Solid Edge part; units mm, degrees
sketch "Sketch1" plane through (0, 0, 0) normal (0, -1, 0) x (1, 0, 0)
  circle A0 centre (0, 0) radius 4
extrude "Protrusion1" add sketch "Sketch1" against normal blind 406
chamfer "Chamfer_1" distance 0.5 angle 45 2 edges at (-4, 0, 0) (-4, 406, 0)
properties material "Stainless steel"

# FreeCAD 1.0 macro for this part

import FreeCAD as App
import Part
import Sketcher

V = App.Vector
Q = App.Units.Quantity


def edges_at(feature, points):
    """Names of the edges that pass closest to the given points."""
    edges = feature.Shape.Edges
    near = lambda p: min(range(len(edges)), key=lambda i: edges[i].distToShape(Part.Vertex(*p))[0])
    return sorted({f"Edge{near(p) + 1}" for p in points})

doc = App.newDocument("Part")
body = doc.addObject("PartDesign::Body", "Body")

# Sketch on XZ plane
sketch1 = body.newObject("Sketcher::SketchObject", "Sketch")
sketch1.AttachmentSupport = (doc.getObject("XZ_Plane"), [""])
sketch1.MapMode = "FlatFace"
sketch1.addGeometry(Part.Circle(V(0, 0, 0), V(0, 0, 1), 4), False)
sketch1.addConstraint(Sketcher.Constraint("Coincident", 0, 3, -1, 1))
sketch1.addConstraint(Sketcher.Constraint("Diameter", 0, Q("8 mm")))
pad1 = body.newObject("PartDesign::Pad", "Pad")
pad1.Profile = sketch1
pad1.Length = 406
pad1.Reversed = True
doc.recompute()

chamfer = body.newObject("PartDesign::Chamfer", "Chamfer")
chamfer.Base = (pad1, edges_at(pad1, [(-4, 0, 0), (-4, 406, 0)]))
chamfer.Size = 0.5

doc.recompute()
